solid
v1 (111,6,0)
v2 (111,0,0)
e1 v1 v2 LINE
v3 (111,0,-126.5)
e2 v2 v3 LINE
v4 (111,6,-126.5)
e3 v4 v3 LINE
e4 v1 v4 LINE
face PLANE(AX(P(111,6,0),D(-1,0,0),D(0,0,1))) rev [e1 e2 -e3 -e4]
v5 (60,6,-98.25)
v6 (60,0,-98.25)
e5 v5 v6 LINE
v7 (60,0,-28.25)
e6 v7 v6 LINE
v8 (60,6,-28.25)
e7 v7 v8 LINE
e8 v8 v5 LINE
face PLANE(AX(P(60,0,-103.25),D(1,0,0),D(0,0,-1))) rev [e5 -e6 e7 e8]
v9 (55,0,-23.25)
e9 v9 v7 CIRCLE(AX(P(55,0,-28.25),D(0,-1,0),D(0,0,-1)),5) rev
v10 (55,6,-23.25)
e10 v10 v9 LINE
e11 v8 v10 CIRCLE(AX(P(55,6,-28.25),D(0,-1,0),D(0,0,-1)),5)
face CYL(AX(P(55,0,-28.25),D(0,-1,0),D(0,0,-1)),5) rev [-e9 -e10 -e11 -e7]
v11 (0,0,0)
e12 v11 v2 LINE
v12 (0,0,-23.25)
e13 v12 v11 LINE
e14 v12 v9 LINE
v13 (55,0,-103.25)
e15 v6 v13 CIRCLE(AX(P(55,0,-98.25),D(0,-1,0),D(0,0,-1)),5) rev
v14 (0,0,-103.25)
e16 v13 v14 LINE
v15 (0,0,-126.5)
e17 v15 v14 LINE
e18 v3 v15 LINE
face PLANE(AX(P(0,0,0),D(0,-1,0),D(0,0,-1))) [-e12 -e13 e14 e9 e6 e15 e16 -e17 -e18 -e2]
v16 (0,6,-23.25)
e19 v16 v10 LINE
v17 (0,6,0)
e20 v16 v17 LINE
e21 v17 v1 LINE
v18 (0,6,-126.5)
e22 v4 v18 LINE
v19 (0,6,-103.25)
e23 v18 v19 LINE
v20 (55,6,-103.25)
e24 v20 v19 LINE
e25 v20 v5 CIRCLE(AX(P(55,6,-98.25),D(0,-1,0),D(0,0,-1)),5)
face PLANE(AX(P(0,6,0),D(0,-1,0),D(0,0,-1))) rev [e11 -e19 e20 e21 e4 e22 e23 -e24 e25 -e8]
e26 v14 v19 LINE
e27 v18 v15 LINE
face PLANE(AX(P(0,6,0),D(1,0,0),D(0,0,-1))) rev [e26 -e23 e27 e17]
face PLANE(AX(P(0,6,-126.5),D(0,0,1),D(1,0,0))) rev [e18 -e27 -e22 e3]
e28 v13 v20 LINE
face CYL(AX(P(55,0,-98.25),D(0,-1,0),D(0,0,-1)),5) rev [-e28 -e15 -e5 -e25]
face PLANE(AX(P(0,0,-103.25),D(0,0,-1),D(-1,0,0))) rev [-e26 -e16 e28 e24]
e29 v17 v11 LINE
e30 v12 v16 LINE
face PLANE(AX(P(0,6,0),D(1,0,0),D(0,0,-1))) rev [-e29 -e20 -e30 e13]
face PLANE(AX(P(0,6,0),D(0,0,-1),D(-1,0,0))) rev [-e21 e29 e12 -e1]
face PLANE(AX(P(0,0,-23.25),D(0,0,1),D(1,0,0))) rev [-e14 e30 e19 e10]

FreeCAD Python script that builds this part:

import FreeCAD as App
import Part
import Sketcher

V = App.Vector
Q = App.Units.Quantity


def edges_at(feature, points):
    """Names of the edges that pass closest to the given points."""
    edges = feature.Shape.Edges
    near = lambda p: min(range(len(edges)), key=lambda i: edges[i].distToShape(Part.Vertex(*p))[0])
    return sorted({f"Edge{near(p) + 1}" for p in points})

doc = App.newDocument("Part")
body = doc.addObject("PartDesign::Body", "Body")

sketch1 = body.newObject("Sketcher::SketchObject", "Sketch")
sketch1.AttachmentSupport = (doc.getObject("XZ_Plane"), [""])
sketch1.MapMode = "FlatFace"
sketch1.addGeometry([
    Part.LineSegment(V(0, -126, 0), V(0, 0, 0)),
    Part.LineSegment(V(0, 0, 0), V(111, 0, 0)),
    Part.LineSegment(V(111, 0, 0), V(111, -126, 0)),
    Part.LineSegment(V(111, -126, 0), V(0, -126, 0)),
], False)
sketch1.addConstraint([
    Sketcher.Constraint("Coincident", 0, 2, 1, 1),
    Sketcher.Constraint("Coincident", 1, 2, 2, 1),
    Sketcher.Constraint("Coincident", 2, 2, 3, 1),
    Sketcher.Constraint("Coincident", 3, 2, 0, 1),
    Sketcher.Constraint("Vertical", 0),
    Sketcher.Constraint("Horizontal", 1),
    Sketcher.Constraint("Vertical", 2),
    Sketcher.Constraint("Horizontal", 3),
    Sketcher.Constraint("Coincident", 0, 2, -1, 1),
    Sketcher.Constraint("DistanceX", 1, 1, 1, 2, Q("111 mm")),
    Sketcher.Constraint("DistanceY", 0, 1, 0, 2, Q("126.5 mm")),
])
pad1 = body.newObject("PartDesign::Pad", "Pad")
pad1.Profile = sketch1
pad1.Length = 6
pad1.Reversed = True

sketch2 = body.newObject("Sketcher::SketchObject", "Sketch001")
sketch2.AttachmentSupport = (doc.getObject("XZ_Plane"), [""])
sketch2.MapMode = "FlatFace"
sketch2.AttachmentOffset = App.Placement(V(0, 0, -6), App.Rotation())
sketch2.addGeometry([
    Part.LineSegment(V(0, -103, 0), V(0, -23, 0)),
    Part.LineSegment(V(0, -23, 0), V(60, -23, 0)),
    Part.LineSegment(V(60, -23, 0), V(60, -103, 0)),
    Part.LineSegment(V(60, -103, 0), V(0, -103, 0)),
], False)
sketch2.addConstraint([
    Sketcher.Constraint("Coincident", 0, 2, 1, 1),
    Sketcher.Constraint("Coincident", 1, 2, 2, 1),
    Sketcher.Constraint("Coincident", 2, 2, 3, 1),
    Sketcher.Constraint("Coincident", 3, 2, 0, 1),
    Sketcher.Constraint("Vertical", 0),
    Sketcher.Constraint("Horizontal", 1),
    Sketcher.Constraint("Vertical", 2),
    Sketcher.Constraint("Horizontal", 3),
    Sketcher.Constraint("PointOnObject", 0, 2, -2),
    Sketcher.Constraint("DistanceX", 1, 1, 1, 2, Q("60 mm")),
    Sketcher.Constraint("DistanceY", 0, 1, 0, 2, Q("80 mm")),
    Sketcher.Constraint("DistanceY", 0, 2, -1, 1, Q("23.25 mm")),
])
pocket1 = body.newObject("PartDesign::Pocket", "Pocket")
pocket1.Profile = sketch2
pocket1.Type = "ThroughAll"
pocket1.Reversed = True
doc.recompute()

fillet = body.newObject("PartDesign::Fillet", "Fillet")
fillet.Base = (pocket1, edges_at(pocket1, [(60, 3, -103.25), (60, 3, -23.25)]))
fillet.Radius = 5

doc.recompute()
